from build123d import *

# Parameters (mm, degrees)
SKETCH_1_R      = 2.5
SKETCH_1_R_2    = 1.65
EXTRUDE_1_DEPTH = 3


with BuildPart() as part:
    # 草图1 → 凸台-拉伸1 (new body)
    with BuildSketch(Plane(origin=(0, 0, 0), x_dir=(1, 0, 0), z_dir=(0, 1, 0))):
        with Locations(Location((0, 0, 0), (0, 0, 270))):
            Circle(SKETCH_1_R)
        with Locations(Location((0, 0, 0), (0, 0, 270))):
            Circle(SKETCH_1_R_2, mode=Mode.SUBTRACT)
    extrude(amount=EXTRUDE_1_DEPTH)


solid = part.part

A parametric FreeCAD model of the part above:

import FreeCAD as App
import Part
import Sketcher

V = App.Vector
Q = App.Units.Quantity

doc = App.newDocument("Part")
body = doc.addObject("PartDesign::Body", "Body")

# Sketch on XZ plane
sketch1 = body.newObject("Sketcher::SketchObject", "Sketch")
sketch1.AttachmentSupport = (doc.getObject("XZ_Plane"), [""])
sketch1.MapMode = "FlatFace"
sketch1.addGeometry([
    Part.Circle(V(0, 0, 0), V(0, 0, 1), 2.5),
    Part.Circle(V(0, 0, 0), V(0, 0, 1), 1.6),
], False)
sketch1.addConstraint([
    Sketcher.Constraint("Coincident", 0, 3, -1, 1),
    Sketcher.Constraint("Coincident", 1, 3, -1, 1),
    Sketcher.Constraint("Diameter", 0, Q("5 mm")),
    Sketcher.Constraint("Diameter", 1, Q("3.3 mm")),
])
pad1 = body.newObject("PartDesign::Pad", "Pad")
pad1.Profile = sketch1
pad1.Length = 3
pad1.Reversed = True

doc.recompute()
